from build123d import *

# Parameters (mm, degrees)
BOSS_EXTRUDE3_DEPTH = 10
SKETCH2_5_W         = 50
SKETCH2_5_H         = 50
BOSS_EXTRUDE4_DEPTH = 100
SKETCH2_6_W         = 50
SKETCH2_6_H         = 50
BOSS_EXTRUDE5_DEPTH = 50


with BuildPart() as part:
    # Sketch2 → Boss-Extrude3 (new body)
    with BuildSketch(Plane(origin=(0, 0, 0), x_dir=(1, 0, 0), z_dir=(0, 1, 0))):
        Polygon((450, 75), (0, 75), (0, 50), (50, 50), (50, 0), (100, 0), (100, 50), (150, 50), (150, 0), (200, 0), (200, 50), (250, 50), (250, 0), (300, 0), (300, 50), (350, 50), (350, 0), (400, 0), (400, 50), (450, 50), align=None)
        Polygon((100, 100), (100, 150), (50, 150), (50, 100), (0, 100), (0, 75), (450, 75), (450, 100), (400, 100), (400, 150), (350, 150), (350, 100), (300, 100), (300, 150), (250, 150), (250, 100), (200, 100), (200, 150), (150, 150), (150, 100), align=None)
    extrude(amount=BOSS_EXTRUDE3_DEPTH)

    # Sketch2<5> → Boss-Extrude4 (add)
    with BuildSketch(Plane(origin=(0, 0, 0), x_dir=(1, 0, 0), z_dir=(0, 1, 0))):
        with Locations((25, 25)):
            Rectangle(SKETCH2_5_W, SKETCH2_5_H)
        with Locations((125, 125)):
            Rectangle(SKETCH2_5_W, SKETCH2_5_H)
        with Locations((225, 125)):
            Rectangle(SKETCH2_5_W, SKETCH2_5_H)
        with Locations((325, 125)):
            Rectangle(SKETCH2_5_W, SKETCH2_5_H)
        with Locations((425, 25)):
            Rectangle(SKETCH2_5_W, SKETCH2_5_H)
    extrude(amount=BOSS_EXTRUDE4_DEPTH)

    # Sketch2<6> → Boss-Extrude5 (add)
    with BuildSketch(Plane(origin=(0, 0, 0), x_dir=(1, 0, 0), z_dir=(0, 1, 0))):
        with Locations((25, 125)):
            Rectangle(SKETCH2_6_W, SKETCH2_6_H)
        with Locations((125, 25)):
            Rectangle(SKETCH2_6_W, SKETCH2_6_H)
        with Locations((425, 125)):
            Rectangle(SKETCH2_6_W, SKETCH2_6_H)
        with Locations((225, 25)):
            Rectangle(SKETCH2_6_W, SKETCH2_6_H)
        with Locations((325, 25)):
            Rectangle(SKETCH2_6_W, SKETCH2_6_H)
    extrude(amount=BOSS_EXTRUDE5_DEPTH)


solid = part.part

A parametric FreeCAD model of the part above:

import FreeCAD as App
import Part
import Sketcher
from FreeCAD import Vector
Q = App.Units.Quantity

doc = App.newDocument("Part")
body = doc.addObject("PartDesign::Body", "Body")

# Sketch on XZ plane
sketch1 = doc.addObject("Sketcher::SketchObject", "Sketch")
body.addObject(sketch1)
sketch1.AttachmentSupport = (doc.XZ_Plane, [""])
sketch1.MapMode = "FlatFace"
sketch1.addGeometry(Part.LineSegment(Vector(0, -50, 0), Vector(50, -50, 0)), False)
sketch1.addGeometry(Part.LineSegment(Vector(50, -50, 0), Vector(50, 0, 0)), False)
sketch1.addGeometry(Part.LineSegment(Vector(50, 0, 0), Vector(100, 0, 0)), False)
sketch1.addGeometry(Part.LineSegment(Vector(100, 0, 0), Vector(100, -50, 0)), False)
sketch1.addGeometry(Part.LineSegment(Vector(100, -50, 0), Vector(150, -50, 0)), False)
sketch1.addGeometry(Part.LineSegment(Vector(150, -50, 0), Vector(150, 0, 0)), False)
sketch1.addGeometry(Part.LineSegment(Vector(150, 0, 0), Vector(200, 0, 0)), False)
sketch1.addGeometry(Part.LineSegment(Vector(200, 0, 0), Vector(200, -50, 0)), False)
sketch1.addGeometry(Part.LineSegment(Vector(200, -50, 0), Vector(250, -50, 0)), False)
sketch1.addGeometry(Part.LineSegment(Vector(250, -50, 0), Vector(250, 0, 0)), False)
sketch1.addGeometry(Part.LineSegment(Vector(250, 0, 0), Vector(300, 0, 0)), False)
sketch1.addGeometry(Part.LineSegment(Vector(300, 0, 0), Vector(300, -50, 0)), False)
sketch1.addGeometry(Part.LineSegment(Vector(300, -50, 0), Vector(350, -50, 0)), False)
sketch1.addGeometry(Part.LineSegment(Vector(350, -50, 0), Vector(350, 0, 0)), False)
sketch1.addGeometry(Part.LineSegment(Vector(350, 0, 0), Vector(400, 0, 0)), False)
sketch1.addGeometry(Part.LineSegment(Vector(400, 0, 0), Vector(400, -50, 0)), False)
sketch1.addGeometry(Part.LineSegment(Vector(400, -50, 0), Vector(450, -50, 0)), False)
sketch1.addGeometry(Part.LineSegment(Vector(450, -50, 0), Vector(450, -100, 0)), False)
sketch1.addGeometry(Part.LineSegment(Vector(450, -100, 0), Vector(400, -100, 0)), False)
sketch1.addGeometry(Part.LineSegment(Vector(400, -100, 0), Vector(400, -150, 0)), False)
sketch1.addGeometry(Part.LineSegment(Vector(400, -150, 0), Vector(350, -150, 0)), False)
sketch1.addGeometry(Part.LineSegment(Vector(350, -150, 0), Vector(350, -100, 0)), False)
sketch1.addGeometry(Part.LineSegment(Vector(350, -100, 0), Vector(300, -100, 0)), False)
sketch1.addGeometry(Part.LineSegment(Vector(300, -100, 0), Vector(300, -150, 0)), False)
sketch1.addGeometry(Part.LineSegment(Vector(300, -150, 0), Vector(250, -150, 0)), False)
sketch1.addGeometry(Part.LineSegment(Vector(250, -150, 0), Vector(250, -100, 0)), False)
sketch1.addGeometry(Part.LineSegment(Vector(250, -100, 0), Vector(200, -100, 0)), False)
sketch1.addGeometry(Part.LineSegment(Vector(200, -100, 0), Vector(200, -150, 0)), False)
sketch1.addGeometry(Part.LineSegment(Vector(200, -150, 0), Vector(150, -150, 0)), False)
sketch1.addGeometry(Part.LineSegment(Vector(150, -150, 0), Vector(150, -100, 0)), False)
sketch1.addGeometry(Part.LineSegment(Vector(150, -100, 0), Vector(100, -100, 0)), False)
sketch1.addGeometry(Part.LineSegment(Vector(100, -100, 0), Vector(100, -150, 0)), False)
sketch1.addGeometry(Part.LineSegment(Vector(100, -150, 0), Vector(50, -150, 0)), False)
sketch1.addGeometry(Part.LineSegment(Vector(50, -150, 0), Vector(50, -100, 0)), False)
sketch1.addGeometry(Part.LineSegment(Vector(50, -100, 0), Vector(0, -100, 0)), False)
sketch1.addGeometry(Part.LineSegment(Vector(0, -100, 0), Vector(0, -50, 0)), False)
sketch1.addConstraint(Sketcher.Constraint("Coincident", 0, 2, 1, 1))
sketch1.addConstraint(Sketcher.Constraint("Coincident", 1, 2, 2, 1))
sketch1.addConstraint(Sketcher.Constraint("Coincident", 2, 2, 3, 1))
sketch1.addConstraint(Sketcher.Constraint("Coincident", 3, 2, 4, 1))
sketch1.addConstraint(Sketcher.Constraint("Coincident", 4, 2, 5, 1))
sketch1.addConstraint(Sketcher.Constraint("Coincident", 5, 2, 6, 1))
sketch1.addConstraint(Sketcher.Constraint("Coincident", 6, 2, 7, 1))
sketch1.addConstraint(Sketcher.Constraint("Coincident", 7, 2, 8, 1))
sketch1.addConstraint(Sketcher.Constraint("Coincident", 8, 2, 9, 1))
sketch1.addConstraint(Sketcher.Constraint("Coincident", 9, 2, 10, 1))
sketch1.addConstraint(Sketcher.Constraint("Coincident", 10, 2, 11, 1))
sketch1.addConstraint(Sketcher.Constraint("Coincident", 11, 2, 12, 1))
sketch1.addConstraint(Sketcher.Constraint("Coincident", 12, 2, 13, 1))
sketch1.addConstraint(Sketcher.Constraint("Coincident", 13, 2, 14, 1))
sketch1.addConstraint(Sketcher.Constraint("Coincident", 14, 2, 15, 1))
sketch1.addConstraint(Sketcher.Constraint("Coincident", 15, 2, 16, 1))
sketch1.addConstraint(Sketcher.Constraint("Coincident", 16, 2, 17, 1))
sketch1.addConstraint(Sketcher.Constraint("Coincident", 17, 2, 18, 1))
sketch1.addConstraint(Sketcher.Constraint("Coincident", 18, 2, 19, 1))
sketch1.addConstraint(Sketcher.Constraint("Coincident", 19, 2, 20, 1))
sketch1.addConstraint(Sketcher.Constraint("Coincident", 20, 2, 21, 1))
sketch1.addConstraint(Sketcher.Constraint("Coincident", 21, 2, 22, 1))
sketch1.addConstraint(Sketcher.Constraint("Coincident", 22, 2, 23, 1))
sketch1.addConstraint(Sketcher.Constraint("Coincident", 23, 2, 24, 1))
sketch1.addConstraint(Sketcher.Constraint("Coincident", 24, 2, 25, 1))
sketch1.addConstraint(Sketcher.Constraint("Coincident", 25, 2, 26, 1))
sketch1.addConstraint(Sketcher.Constraint("Coincident", 26, 2, 27, 1))
sketch1.addConstraint(Sketcher.Constraint("Coincident", 27, 2, 28, 1))
sketch1.addConstraint(Sketcher.Constraint("Coincident", 28, 2, 29, 1))
sketch1.addConstraint(Sketcher.Constraint("Coincident", 29, 2, 30, 1))
sketch1.addConstraint(Sketcher.Constraint("Coincident", 30, 2, 31, 1))
sketch1.addConstraint(Sketcher.Constraint("Coincident", 31, 2, 32, 1))
sketch1.addConstraint(Sketcher.Constraint("Coincident", 32, 2, 33, 1))
sketch1.addConstraint(Sketcher.Constraint("Coincident", 33, 2, 34, 1))
sketch1.addConstraint(Sketcher.Constraint("Coincident", 34, 2, 35, 1))
sketch1.addConstraint(Sketcher.Constraint("Coincident", 35, 2, 0, 1))
sketch1.addConstraint(Sketcher.Constraint("Horizontal", 0))
sketch1.addConstraint(Sketcher.Constraint("Vertical", 1))
sketch1.addConstraint(Sketcher.Constraint("Horizontal", 2))
sketch1.addConstraint(Sketcher.Constraint("Vertical", 3))
sketch1.addConstraint(Sketcher.Constraint("Horizontal", 4))
sketch1.addConstraint(Sketcher.Constraint("Vertical", 5))
sketch1.addConstraint(Sketcher.Constraint("Horizontal", 6))
sketch1.addConstraint(Sketcher.Constraint("Vertical", 7))
sketch1.addConstraint(Sketcher.Constraint("Horizontal", 8))
sketch1.addConstraint(Sketcher.Constraint("Vertical", 9))
sketch1.addConstraint(Sketcher.Constraint("Horizontal", 10))
sketch1.addConstraint(Sketcher.Constraint("Vertical", 11))
sketch1.addConstraint(Sketcher.Constraint("Horizontal", 12))
sketch1.addConstraint(Sketcher.Constraint("Vertical", 13))
sketch1.addConstraint(Sketcher.Constraint("Horizontal", 14))
sketch1.addConstraint(Sketcher.Constraint("Vertical", 15))
sketch1.addConstraint(Sketcher.Constraint("Horizontal", 16))
sketch1.addConstraint(Sketcher.Constraint("Vertical", 17))
sketch1.addConstraint(Sketcher.Constraint("Horizontal", 18))
sketch1.addConstraint(Sketcher.Constraint("Vertical", 19))
sketch1.addConstraint(Sketcher.Constraint("Horizontal", 20))
sketch1.addConstraint(Sketcher.Constraint("Vertical", 21))
sketch1.addConstraint(Sketcher.Constraint("Horizontal", 22))
sketch1.addConstraint(Sketcher.Constraint("Vertical", 23))
sketch1.addConstraint(Sketcher.Constraint("Horizontal", 24))
sketch1.addConstraint(Sketcher.Constraint("Vertical", 25))
sketch1.addConstraint(Sketcher.Constraint("Horizontal", 26))
sketch1.addConstraint(Sketcher.Constraint("Vertical", 27))
sketch1.addConstraint(Sketcher.Constraint("Horizontal", 28))
sketch1.addConstraint(Sketcher.Constraint("Vertical", 29))
sketch1.addConstraint(Sketcher.Constraint("Horizontal", 30))
sketch1.addConstraint(Sketcher.Constraint("Vertical", 31))
sketch1.addConstraint(Sketcher.Constraint("Horizontal", 32))
sketch1.addConstraint(Sketcher.Constraint("Vertical", 33))
sketch1.addConstraint(Sketcher.Constraint("Horizontal", 34))
sketch1.addConstraint(Sketcher.Constraint("Vertical", 35))
sketch1.addConstraint(Sketcher.Constraint("PointOnObject", 1, 2, -1))
sketch1.addConstraint(Sketcher.Constraint("PointOnObject", 5, 2, -1))
sketch1.addConstraint(Sketcher.Constraint("PointOnObject", 9, 2, -1))
sketch1.addConstraint(Sketcher.Constraint("PointOnObject", 13, 2, -1))
sketch1.addConstraint(Sketcher.Constraint("PointOnObject", 34, 2, -2))
sketch1.addConstraint(Sketcher.Constraint("Horizontal", 0, 2, 3, 2))
sketch1.addConstraint(Sketcher.Constraint("Horizontal", 4, 2, 7, 2))
sketch1.addConstraint(Sketcher.Constraint("Horizontal", 8, 2, 11, 2))
sketch1.addConstraint(Sketcher.Constraint("Horizontal", 12, 2, 15, 2))
sketch1.addConstraint(Sketcher.Constraint("Horizontal", 18, 2, 21, 2))
sketch1.addConstraint(Sketcher.Constraint("Horizontal", 20, 2, 23, 2))
sketch1.addConstraint(Sketcher.Constraint("Horizontal", 22, 2, 25, 2))
sketch1.addConstraint(Sketcher.Constraint("Horizontal", 24, 2, 27, 2))
sketch1.addConstraint(Sketcher.Constraint("Horizontal", 26, 2, 29, 2))
sketch1.addConstraint(Sketcher.Constraint("Horizontal", 28, 2, 31, 2))
sketch1.addConstraint(Sketcher.Constraint("Horizontal", 30, 2, 33, 2))
sketch1.addConstraint(Sketcher.Constraint("Vertical", 15, 2, 18, 2))
sketch1.addConstraint(Sketcher.Constraint("Vertical", 13, 2, 20, 2))
sketch1.addConstraint(Sketcher.Constraint("Vertical", 11, 2, 22, 2))
sketch1.addConstraint(Sketcher.Constraint("Vertical", 9, 2, 24, 2))
sketch1.addConstraint(Sketcher.Constraint("Vertical", 7, 2, 26, 2))
sketch1.addConstraint(Sketcher.Constraint("Vertical", 5, 2, 28, 2))
sketch1.addConstraint(Sketcher.Constraint("Vertical", 3, 2, 30, 2))
sketch1.addConstraint(Sketcher.Constraint("Vertical", 1, 2, 32, 2))
sketch1.addConstraint(Sketcher.Constraint("Equal", 0, 2))
sketch1.addConstraint(Sketcher.Constraint("Equal", 2, 4))
sketch1.addConstraint(Sketcher.Constraint("Equal", 4, 6))
sketch1.addConstraint(Sketcher.Constraint("Equal", 6, 8))
sketch1.addConstraint(Sketcher.Constraint("Equal", 8, 10))
sketch1.addConstraint(Sketcher.Constraint("Equal", 10, 12))
sketch1.addConstraint(Sketcher.Constraint("Equal", 12, 14))
sketch1.addConstraint(Sketcher.Constraint("Equal", 14, 16))
sketch1.addConstraint(Sketcher.Constraint("Equal", 34, 1))
sketch1.addConstraint(Sketcher.Constraint("Equal", 15, 17))
sketch1.addConstraint(Sketcher.Constraint("Equal", 17, 19))
sketch1.addConstraint(Sketcher.Constraint("DistanceX", 0, 1, 0, 2, Q("50 mm")))
pad1 = doc.addObject("PartDesign::Pad", "Pad")
body.addObject(pad1)
pad1.Profile = sketch1
pad1.Length = 10
pad1.Reversed = True

# Sketch on XZ plane
sketch2 = doc.addObject("Sketcher::SketchObject", "Sketch001")
body.addObject(sketch2)
sketch2.AttachmentSupport = (doc.XZ_Plane, [""])
sketch2.MapMode = "FlatFace"
sketch2.addGeometry(Part.LineSegment(Vector(0, -50, 0), Vector(0, 0, 0)), False)
sketch2.addGeometry(Part.LineSegment(Vector(0, 0, 0), Vector(50, 0, 0)), False)
sketch2.addGeometry(Part.LineSegment(Vector(50, 0, 0), Vector(50, -50, 0)), False)
sketch2.addGeometry(Part.LineSegment(Vector(50, -50, 0), Vector(0, -50, 0)), False)
sketch2.addGeometry(Part.LineSegment(Vector(100, -150, 0), Vector(100, -100, 0)), False)
sketch2.addGeometry(Part.LineSegment(Vector(100, -100, 0), Vector(150, -100, 0)), False)
sketch2.addGeometry(Part.LineSegment(Vector(150, -100, 0), Vector(150, -150, 0)), False)
sketch2.addGeometry(Part.LineSegment(Vector(150, -150, 0), Vector(100, -150, 0)), False)
sketch2.addGeometry(Part.LineSegment(Vector(200, -150, 0), Vector(200, -100, 0)), False)
sketch2.addGeometry(Part.LineSegment(Vector(200, -100, 0), Vector(250, -100, 0)), False)
sketch2.addGeometry(Part.LineSegment(Vector(250, -100, 0), Vector(250, -150, 0)), False)
sketch2.addGeometry(Part.LineSegment(Vector(250, -150, 0), Vector(200, -150, 0)), False)
sketch2.addGeometry(Part.LineSegment(Vector(300, -150, 0), Vector(300, -100, 0)), False)
sketch2.addGeometry(Part.LineSegment(Vector(300, -100, 0), Vector(350, -100, 0)), False)
sketch2.addGeometry(Part.LineSegment(Vector(350, -100, 0), Vector(350, -150, 0)), False)
sketch2.addGeometry(Part.LineSegment(Vector(350, -150, 0), Vector(300, -150, 0)), False)
sketch2.addGeometry(Part.LineSegment(Vector(400, -50, 0), Vector(400, 0, 0)), False)
sketch2.addGeometry(Part.LineSegment(Vector(400, 0, 0), Vector(450, 0, 0)), False)
sketch2.addGeometry(Part.LineSegment(Vector(450, 0, 0), Vector(450, -50, 0)), False)
sketch2.addGeometry(Part.LineSegment(Vector(450, -50, 0), Vector(400, -50, 0)), False)
sketch2.addConstraint(Sketcher.Constraint("Coincident", 0, 2, 1, 1))
sketch2.addConstraint(Sketcher.Constraint("Coincident", 1, 2, 2, 1))
sketch2.addConstraint(Sketcher.Constraint("Coincident", 2, 2, 3, 1))
sketch2.addConstraint(Sketcher.Constraint("Coincident", 3, 2, 0, 1))
sketch2.addConstraint(Sketcher.Constraint("Coincident", 4, 2, 5, 1))
sketch2.addConstraint(Sketcher.Constraint("Coincident", 5, 2, 6, 1))
sketch2.addConstraint(Sketcher.Constraint("Coincident", 6, 2, 7, 1))
sketch2.addConstraint(Sketcher.Constraint("Coincident", 7, 2, 4, 1))
sketch2.addConstraint(Sketcher.Constraint("Coincident", 8, 2, 9, 1))
sketch2.addConstraint(Sketcher.Constraint("Coincident", 9, 2, 10, 1))
sketch2.addConstraint(Sketcher.Constraint("Coincident", 10, 2, 11, 1))
sketch2.addConstraint(Sketcher.Constraint("Coincident", 11, 2, 8, 1))
sketch2.addConstraint(Sketcher.Constraint("Coincident", 12, 2, 13, 1))
sketch2.addConstraint(Sketcher.Constraint("Coincident", 13, 2, 14, 1))
sketch2.addConstraint(Sketcher.Constraint("Coincident", 14, 2, 15, 1))
sketch2.addConstraint(Sketcher.Constraint("Coincident", 15, 2, 12, 1))
sketch2.addConstraint(Sketcher.Constraint("Coincident", 16, 2, 17, 1))
sketch2.addConstraint(Sketcher.Constraint("Coincident", 17, 2, 18, 1))
sketch2.addConstraint(Sketcher.Constraint("Coincident", 18, 2, 19, 1))
sketch2.addConstraint(Sketcher.Constraint("Coincident", 19, 2, 16, 1))
sketch2.addConstraint(Sketcher.Constraint("Vertical", 0))
sketch2.addConstraint(Sketcher.Constraint("Horizontal", 1))
sketch2.addConstraint(Sketcher.Constraint("Vertical", 2))
sketch2.addConstraint(Sketcher.Constraint("Horizontal", 3))
sketch2.addConstraint(Sketcher.Constraint("Vertical", 4))
sketch2.addConstraint(Sketcher.Constraint("Horizontal", 5))
sketch2.addConstraint(Sketcher.Constraint("Vertical", 6))
sketch2.addConstraint(Sketcher.Constraint("Horizontal", 7))
sketch2.addConstraint(Sketcher.Constraint("Vertical", 8))
sketch2.addConstraint(Sketcher.Constraint("Horizontal", 9))
sketch2.addConstraint(Sketcher.Constraint("Vertical", 10))
sketch2.addConstraint(Sketcher.Constraint("Horizontal", 11))
sketch2.addConstraint(Sketcher.Constraint("Vertical", 12))
sketch2.addConstraint(Sketcher.Constraint("Horizontal", 13))
sketch2.addConstraint(Sketcher.Constraint("Vertical", 14))
sketch2.addConstraint(Sketcher.Constraint("Horizontal", 15))
sketch2.addConstraint(Sketcher.Constraint("Vertical", 16))
sketch2.addConstraint(Sketcher.Constraint("Horizontal", 17))
sketch2.addConstraint(Sketcher.Constraint("Vertical", 18))
sketch2.addConstraint(Sketcher.Constraint("Horizontal", 19))
sketch2.addConstraint(Sketcher.Constraint("Coincident", 0, 2, -1, 1))
sketch2.addConstraint(Sketcher.Constraint("PointOnObject", 16, 2, -1))
sketch2.addConstraint(Sketcher.Constraint("Horizontal", 5, 2, 8, 2))
sketch2.addConstraint(Sketcher.Constraint("Horizontal", 7, 2, 10, 2))
sketch2.addConstraint(Sketcher.Constraint("Horizontal", 9, 2, 12, 2))
sketch2.addConstraint(Sketcher.Constraint("Horizontal", 11, 2, 14, 2))
sketch2.addConstraint(Sketcher.Constraint("Horizontal", 3, 2, 18, 2))
sketch2.addConstraint(Sketcher.Constraint("Equal", 3, 5))
sketch2.addConstraint(Sketcher.Constraint("Equal", 7, 9))
sketch2.addConstraint(Sketcher.Constraint("Equal", 11, 13))
sketch2.addConstraint(Sketcher.Constraint("Equal", 15, 17))
sketch2.addConstraint(Sketcher.Constraint("Equal", 19, 0))
sketch2.addConstraint(Sketcher.Constraint("Equal", 2, 4))
sketch2.addConstraint(Sketcher.Constraint("DistanceX", 1, 1, 1, 2, Q("50 mm")))
sketch2.addConstraint(Sketcher.Constraint("DistanceX", -1, 1, 4, 2, Q("100 mm")))
sketch2.addConstraint(Sketcher.Constraint("DistanceY", 4, 2, -1, 1, Q("100 mm")))
sketch2.addConstraint(Sketcher.Constraint("DistanceX", -1, 1, 8, 2, Q("200 mm")))
sketch2.addConstraint(Sketcher.Constraint("DistanceX", -1, 1, 12, 2, Q("300 mm")))
sketch2.addConstraint(Sketcher.Constraint("DistanceX", -1, 1, 16, 2, Q("400 mm")))
pad2 = doc.addObject("PartDesign::Pad", "Pad001")
body.addObject(pad2)
pad2.Profile = sketch2
pad2.Length = 100
pad2.Reversed = True

# Sketch on XZ plane
sketch3 = doc.addObject("Sketcher::SketchObject", "Sketch002")
body.addObject(sketch3)
sketch3.AttachmentSupport = (doc.XZ_Plane, [""])
sketch3.MapMode = "FlatFace"
sketch3.addGeometry(Part.LineSegment(Vector(0, -150, 0), Vector(0, -100, 0)), False)
sketch3.addGeometry(Part.LineSegment(Vector(0, -100, 0), Vector(50, -100, 0)), False)
sketch3.addGeometry(Part.LineSegment(Vector(50, -100, 0), Vector(50, -150, 0)), False)
sketch3.addGeometry(Part.LineSegment(Vector(50, -150, 0), Vector(0, -150, 0)), False)
sketch3.addGeometry(Part.LineSegment(Vector(100, -50, 0), Vector(100, 0, 0)), False)
sketch3.addGeometry(Part.LineSegment(Vector(100, 0, 0), Vector(150, 0, 0)), False)
sketch3.addGeometry(Part.LineSegment(Vector(150, 0, 0), Vector(150, -50, 0)), False)
sketch3.addGeometry(Part.LineSegment(Vector(150, -50, 0), Vector(100, -50, 0)), False)
sketch3.addGeometry(Part.LineSegment(Vector(400, -150, 0), Vector(400, -100, 0)), False)
sketch3.addGeometry(Part.LineSegment(Vector(400, -100, 0), Vector(450, -100, 0)), False)
sketch3.addGeometry(Part.LineSegment(Vector(450, -100, 0), Vector(450, -150, 0)), False)
sketch3.addGeometry(Part.LineSegment(Vector(450, -150, 0), Vector(400, -150, 0)), False)
sketch3.addGeometry(Part.LineSegment(Vector(200, -50, 0), Vector(200, 0, 0)), False)
sketch3.addGeometry(Part.LineSegment(Vector(200, 0, 0), Vector(250, 0, 0)), False)
sketch3.addGeometry(Part.LineSegment(Vector(250, 0, 0), Vector(250, -50, 0)), False)
sketch3.addGeometry(Part.LineSegment(Vector(250, -50, 0), Vector(200, -50, 0)), False)
sketch3.addGeometry(Part.LineSegment(Vector(300, -50, 0), Vector(300, 0, 0)), False)
sketch3.addGeometry(Part.LineSegment(Vector(300, 0, 0), Vector(350, 0, 0)), False)
sketch3.addGeometry(Part.LineSegment(Vector(350, 0, 0), Vector(350, -50, 0)), False)
sketch3.addGeometry(Part.LineSegment(Vector(350, -50, 0), Vector(300, -50, 0)), False)
sketch3.addConstraint(Sketcher.Constraint("Coincident", 0, 2, 1, 1))
sketch3.addConstraint(Sketcher.Constraint("Coincident", 1, 2, 2, 1))
sketch3.addConstraint(Sketcher.Constraint("Coincident", 2, 2, 3, 1))
sketch3.addConstraint(Sketcher.Constraint("Coincident", 3, 2, 0, 1))
sketch3.addConstraint(Sketcher.Constraint("Coincident", 4, 2, 5, 1))
sketch3.addConstraint(Sketcher.Constraint("Coincident", 5, 2, 6, 1))
sketch3.addConstraint(Sketcher.Constraint("Coincident", 6, 2, 7, 1))
sketch3.addConstraint(Sketcher.Constraint("Coincident", 7, 2, 4, 1))
sketch3.addConstraint(Sketcher.Constraint("Coincident", 8, 2, 9, 1))
sketch3.addConstraint(Sketcher.Constraint("Coincident", 9, 2, 10, 1))
sketch3.addConstraint(Sketcher.Constraint("Coincident", 10, 2, 11, 1))
sketch3.addConstraint(Sketcher.Constraint("Coincident", 11, 2, 8, 1))
sketch3.addConstraint(Sketcher.Constraint("Coincident", 12, 2, 13, 1))
sketch3.addConstraint(Sketcher.Constraint("Coincident", 13, 2, 14, 1))
sketch3.addConstraint(Sketcher.Constraint("Coincident", 14, 2, 15, 1))
sketch3.addConstraint(Sketcher.Constraint("Coincident", 15, 2, 12, 1))
sketch3.addConstraint(Sketcher.Constraint("Coincident", 16, 2, 17, 1))
sketch3.addConstraint(Sketcher.Constraint("Coincident", 17, 2, 18, 1))
sketch3.addConstraint(Sketcher.Constraint("Coincident", 18, 2, 19, 1))
sketch3.addConstraint(Sketcher.Constraint("Coincident", 19, 2, 16, 1))
sketch3.addConstraint(Sketcher.Constraint("Vertical", 0))
sketch3.addConstraint(Sketcher.Constraint("Horizontal", 1))
sketch3.addConstraint(Sketcher.Constraint("Vertical", 2))
sketch3.addConstraint(Sketcher.Constraint("Horizontal", 3))
sketch3.addConstraint(Sketcher.Constraint("Vertical", 4))
sketch3.addConstraint(Sketcher.Constraint("Horizontal", 5))
sketch3.addConstraint(Sketcher.Constraint("Vertical", 6))
sketch3.addConstraint(Sketcher.Constraint("Horizontal", 7))
sketch3.addConstraint(Sketcher.Constraint("Vertical", 8))
sketch3.addConstraint(Sketcher.Constraint("Horizontal", 9))
sketch3.addConstraint(Sketcher.Constraint("Vertical", 10))
sketch3.addConstraint(Sketcher.Constraint("Horizontal", 11))
sketch3.addConstraint(Sketcher.Constraint("Vertical", 12))
sketch3.addConstraint(Sketcher.Constraint("Horizontal", 13))
sketch3.addConstraint(Sketcher.Constraint("Vertical", 14))
sketch3.addConstraint(Sketcher.Constraint("Horizontal", 15))
sketch3.addConstraint(Sketcher.Constraint("Vertical", 16))
sketch3.addConstraint(Sketcher.Constraint("Horizontal", 17))
sketch3.addConstraint(Sketcher.Constraint("Vertical", 18))
sketch3.addConstraint(Sketcher.Constraint("Horizontal", 19))
sketch3.addConstraint(Sketcher.Constraint("PointOnObject", 0, 2, -2))
sketch3.addConstraint(Sketcher.Constraint("PointOnObject", 4, 2, -1))
sketch3.addConstraint(Sketcher.Constraint("PointOnObject", 12, 2, -1))
sketch3.addConstraint(Sketcher.Constraint("PointOnObject", 16, 2, -1))
sketch3.addConstraint(Sketcher.Constraint("Horizontal", 1, 2, 8, 2))
sketch3.addConstraint(Sketcher.Constraint("Horizontal", 3, 2, 10, 2))
sketch3.addConstraint(Sketcher.Constraint("Horizontal", 7, 2, 14, 2))
sketch3.addConstraint(Sketcher.Constraint("Horizontal", 15, 2, 18, 2))
sketch3.addConstraint(Sketcher.Constraint("Equal", 3, 5))
sketch3.addConstraint(Sketcher.Constraint("Equal", 7, 9))
sketch3.addConstraint(Sketcher.Constraint("Equal", 11, 13))
sketch3.addConstraint(Sketcher.Constraint("Equal", 15, 17))
sketch3.addConstraint(Sketcher.Constraint("Equal", 19, 0))
sketch3.addConstraint(Sketcher.Constraint("Equal", 2, 4))
sketch3.addConstraint(Sketcher.Constraint("DistanceX", 1, 1, 1, 2, Q("50 mm")))
sketch3.addConstraint(Sketcher.Constraint("DistanceY", 0, 2, -1, 1, Q("100 mm")))
sketch3.addConstraint(Sketcher.Constraint("DistanceX", -1, 1, 4, 2, Q("100 mm")))
sketch3.addConstraint(Sketcher.Constraint("DistanceX", -1, 1, 8, 2, Q("400 mm")))
sketch3.addConstraint(Sketcher.Constraint("DistanceX", -1, 1, 12, 2, Q("200 mm")))
sketch3.addConstraint(Sketcher.Constraint("DistanceX", -1, 1, 16, 2, Q("300 mm")))
pad3 = doc.addObject("PartDesign::Pad", "Pad002")
body.addObject(pad3)
pad3.Profile = sketch3
pad3.Length = 50
pad3.Reversed = True

doc.recompute()
